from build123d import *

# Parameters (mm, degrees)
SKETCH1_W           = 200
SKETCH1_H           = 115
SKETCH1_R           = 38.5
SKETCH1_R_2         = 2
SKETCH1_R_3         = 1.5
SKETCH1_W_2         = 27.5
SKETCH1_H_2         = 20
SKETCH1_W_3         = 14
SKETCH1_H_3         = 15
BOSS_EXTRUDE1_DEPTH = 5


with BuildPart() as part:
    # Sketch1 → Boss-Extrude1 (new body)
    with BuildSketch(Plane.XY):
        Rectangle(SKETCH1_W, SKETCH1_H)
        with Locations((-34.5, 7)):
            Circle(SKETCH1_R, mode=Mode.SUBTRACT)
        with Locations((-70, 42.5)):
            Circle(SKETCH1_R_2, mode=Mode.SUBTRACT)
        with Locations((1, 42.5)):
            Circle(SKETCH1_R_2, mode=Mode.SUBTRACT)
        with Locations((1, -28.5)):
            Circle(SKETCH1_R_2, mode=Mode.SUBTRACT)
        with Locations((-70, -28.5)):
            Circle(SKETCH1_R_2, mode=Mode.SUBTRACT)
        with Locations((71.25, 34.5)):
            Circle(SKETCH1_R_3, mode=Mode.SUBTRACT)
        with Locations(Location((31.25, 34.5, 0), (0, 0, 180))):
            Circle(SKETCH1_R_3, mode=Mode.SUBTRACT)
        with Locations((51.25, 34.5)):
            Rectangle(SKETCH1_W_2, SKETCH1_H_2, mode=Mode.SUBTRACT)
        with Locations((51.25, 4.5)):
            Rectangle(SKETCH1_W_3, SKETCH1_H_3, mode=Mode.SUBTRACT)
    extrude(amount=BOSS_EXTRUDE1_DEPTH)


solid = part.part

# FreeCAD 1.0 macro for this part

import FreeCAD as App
import Part
import Sketcher

V = App.Vector

doc = App.newDocument("Part")
params = doc.addObject("Spreadsheet::Sheet", "Params")
for row, (alias, value) in enumerate([
    ("sketch1_diameter", "4 mm"),
    ("sketch1_diameter2", "77 mm"),
    ("sketch1_diameter3", "3 mm"),
    ("sketch1_width", "200 mm"),
    ("sketch1_width2", "14 mm"),
    ("pad1_length", "5 mm"),
], start=1):
    params.set(f"A{row}", alias)
    params.set(f"B{row}", "=" + value)
    params.setAlias(f"B{row}", alias)

body = doc.addObject("PartDesign::Body", "Body")

# Sketch on XY plane
sketch1 = body.newObject("Sketcher::SketchObject", "Sketch")
sketch1.AttachmentSupport = (doc.getObject("XY_Plane"), [""])
sketch1.MapMode = "FlatFace"
sketch1.addGeometry(Part.LineSegment(V(-100, 57.5, 0), V(-100, -57.5, 0)), False)
sketch1.addGeometry(Part.LineSegment(V(-100, -57.5, 0), V(100, -57.5, 0)), False)
sketch1.addGeometry(Part.LineSegment(V(100, -57.5, 0), V(100, 57.5, 0)), False)
sketch1.addGeometry(Part.LineSegment(V(100, 57.5, 0), V(-100, 57.5, 0)), False)
sketch1.addGeometry(Part.Circle(V(-70, -28.5, 0), V(0, 0, 1), 2), False)
sketch1.addGeometry(Part.Circle(V(1, -28.5, 0), V(0, 0, 1), 2), False)
sketch1.addGeometry(Part.LineSegment(V(58.25, -3, 0), V(44.25, -3, 0)), False)
sketch1.addGeometry(Part.LineSegment(V(44.25, -3, 0), V(44.25, 12, 0)), False)
sketch1.addGeometry(Part.LineSegment(V(44.25, 12, 0), V(58.25, 12, 0)), False)
sketch1.addGeometry(Part.LineSegment(V(58.25, 12, 0), V(58.25, -3, 0)), False)
sketch1.addGeometry(Part.Circle(V(-34.5, 7, 0), V(0, 0, 1), 38.5), False)
sketch1.addGeometry(Part.Circle(V(-70, 42.5, 0), V(0, 0, 1), 2), False)
sketch1.addGeometry(Part.Circle(V(31.25, 34.5, 0), V(0, 0, 1), 1.5), False)
sketch1.addGeometry(Part.Circle(V(1, 42.5, 0), V(0, 0, 1), 2), False)
sketch1.addGeometry(Part.LineSegment(V(65, 24.5, 0), V(37.5, 24.5, 0)), False)
sketch1.addGeometry(Part.LineSegment(V(37.5, 24.5, 0), V(37.5, 44.5, 0)), False)
sketch1.addGeometry(Part.LineSegment(V(37.5, 44.5, 0), V(65, 44.5, 0)), False)
sketch1.addGeometry(Part.LineSegment(V(65, 44.5, 0), V(65, 24.5, 0)), False)
sketch1.addGeometry(Part.Circle(V(71.25, 34.5, 0), V(0, 0, 1), 1.5), False)
sketch1.addConstraint(Sketcher.Constraint("Coincident", 0, 2, 1, 1))
sketch1.addConstraint(Sketcher.Constraint("Coincident", 1, 2, 2, 1))
sketch1.addConstraint(Sketcher.Constraint("Coincident", 2, 2, 3, 1))
sketch1.addConstraint(Sketcher.Constraint("Coincident", 3, 2, 0, 1))
sketch1.addConstraint(Sketcher.Constraint("Coincident", 6, 2, 7, 1))
sketch1.addConstraint(Sketcher.Constraint("Coincident", 7, 2, 8, 1))
sketch1.addConstraint(Sketcher.Constraint("Coincident", 8, 2, 9, 1))
sketch1.addConstraint(Sketcher.Constraint("Coincident", 9, 2, 6, 1))
sketch1.addConstraint(Sketcher.Constraint("Coincident", 14, 2, 15, 1))
sketch1.addConstraint(Sketcher.Constraint("Coincident", 15, 2, 16, 1))
sketch1.addConstraint(Sketcher.Constraint("Coincident", 16, 2, 17, 1))
sketch1.addConstraint(Sketcher.Constraint("Coincident", 17, 2, 14, 1))
sketch1.addConstraint(Sketcher.Constraint("Vertical", 0))
sketch1.addConstraint(Sketcher.Constraint("Horizontal", 1))
sketch1.addConstraint(Sketcher.Constraint("Vertical", 2))
sketch1.addConstraint(Sketcher.Constraint("Horizontal", 3))
sketch1.addConstraint(Sketcher.Constraint("Horizontal", 6))
sketch1.addConstraint(Sketcher.Constraint("Vertical", 7))
sketch1.addConstraint(Sketcher.Constraint("Horizontal", 8))
sketch1.addConstraint(Sketcher.Constraint("Vertical", 9))
sketch1.addConstraint(Sketcher.Constraint("Horizontal", 14))
sketch1.addConstraint(Sketcher.Constraint("Vertical", 15))
sketch1.addConstraint(Sketcher.Constraint("Horizontal", 16))
sketch1.addConstraint(Sketcher.Constraint("Vertical", 17))
sketch1.addConstraint(Sketcher.Constraint("Equal", 4, 5))
sketch1.addConstraint(Sketcher.Constraint("Equal", 5, 11))
sketch1.addConstraint(Sketcher.Constraint("Equal", 11, 13))
sketch1.addConstraint(Sketcher.Constraint("Equal", 12, 18))
sketch1.addConstraint(Sketcher.Constraint("Symmetric", 0, 2, 2, 2, -1, 1))
sketch1.addConstraint(Sketcher.Constraint("Horizontal", 4, 3, 5, 3))
sketch1.addConstraint(Sketcher.Constraint("Horizontal", 11, 3, 13, 3))
sketch1.addConstraint(Sketcher.Constraint("Horizontal", 12, 3, 18, 3))
sketch1.addConstraint(Sketcher.Constraint("Vertical", 4, 3, 11, 3))
sketch1.addConstraint(Sketcher.Constraint("Vertical", 5, 3, 13, 3))
sketch1.addConstraint(Sketcher.Constraint("Diameter", 4, 4.0))
sketch1.addConstraint(Sketcher.Constraint("Diameter", 10, 77.0))
sketch1.addConstraint(Sketcher.Constraint("Diameter", 12, 3.0))
sketch1.addConstraint(Sketcher.Constraint("DistanceX", 1, 1, 1, 2, 200.0))
sketch1.addConstraint(Sketcher.Constraint("DistanceX", 6, 2, 6, 1, 14.0))
sketch1.addConstraint(Sketcher.Constraint("DistanceY", 0, 2, 0, 1, 115.0))
sketch1.addConstraint(Sketcher.Constraint("DistanceY", 7, 1, 7, 2, 15.0))
sketch1.addConstraint(Sketcher.Constraint("DistanceY", 15, 1, 15, 2, 20.0))
sketch1.addConstraint(Sketcher.Constraint("DistanceX", 14, 2, 14, 1, 27.5))
sketch1.addConstraint(Sketcher.Constraint("DistanceX", 4, 3, -1, 1, 70.0))
sketch1.addConstraint(Sketcher.Constraint("DistanceX", -1, 1, 5, 3, 1.0))
sketch1.addConstraint(Sketcher.Constraint("DistanceY", -1, 1, 10, 3, 7.0))
sketch1.addConstraint(Sketcher.Constraint("DistanceY", 6, 2, -1, 1, 3.0))
sketch1.addConstraint(Sketcher.Constraint("DistanceX", -1, 1, 16, 2, 65.0))
sketch1.addConstraint(Sketcher.Constraint("DistanceY", 4, 3, 11, 3, 71.0))
sketch1.addConstraint(Sketcher.Constraint("DistanceY", 5, 3, 12, 3, 63.0))
sketch1.addConstraint(Sketcher.Constraint("DistanceX", 12, 3, 18, 3, 40.0))
sketch1.addConstraint(Sketcher.Constraint("DistanceY", 0, 2, 4, 3, 29.0))
sketch1.addConstraint(Sketcher.Constraint("DistanceX", 12, 3, 6, 2, 13.0))
sketch1.addConstraint(Sketcher.Constraint("DistanceY", 14, 2, 12, 3, 10.0))
sketch1.addConstraint(Sketcher.Constraint("DistanceX", 10, 3, -1, 1, 34.5))
sketch1.addConstraint(Sketcher.Constraint("DistanceX", -1, 1, 12, 3, 31.25))
sketch1.setExpression("Constraints[34]", "Params.sketch1_diameter")
sketch1.setExpression("Constraints[35]", "Params.sketch1_diameter2")
sketch1.setExpression("Constraints[36]", "Params.sketch1_diameter3")
sketch1.setExpression("Constraints[37]", "Params.sketch1_width")
sketch1.setExpression("Constraints[38]", "Params.sketch1_width2")
pad1 = body.newObject("PartDesign::Pad", "Pad")
pad1.Profile = sketch1
pad1.setExpression("Length", "Params.pad1_length")

doc.recompute()
